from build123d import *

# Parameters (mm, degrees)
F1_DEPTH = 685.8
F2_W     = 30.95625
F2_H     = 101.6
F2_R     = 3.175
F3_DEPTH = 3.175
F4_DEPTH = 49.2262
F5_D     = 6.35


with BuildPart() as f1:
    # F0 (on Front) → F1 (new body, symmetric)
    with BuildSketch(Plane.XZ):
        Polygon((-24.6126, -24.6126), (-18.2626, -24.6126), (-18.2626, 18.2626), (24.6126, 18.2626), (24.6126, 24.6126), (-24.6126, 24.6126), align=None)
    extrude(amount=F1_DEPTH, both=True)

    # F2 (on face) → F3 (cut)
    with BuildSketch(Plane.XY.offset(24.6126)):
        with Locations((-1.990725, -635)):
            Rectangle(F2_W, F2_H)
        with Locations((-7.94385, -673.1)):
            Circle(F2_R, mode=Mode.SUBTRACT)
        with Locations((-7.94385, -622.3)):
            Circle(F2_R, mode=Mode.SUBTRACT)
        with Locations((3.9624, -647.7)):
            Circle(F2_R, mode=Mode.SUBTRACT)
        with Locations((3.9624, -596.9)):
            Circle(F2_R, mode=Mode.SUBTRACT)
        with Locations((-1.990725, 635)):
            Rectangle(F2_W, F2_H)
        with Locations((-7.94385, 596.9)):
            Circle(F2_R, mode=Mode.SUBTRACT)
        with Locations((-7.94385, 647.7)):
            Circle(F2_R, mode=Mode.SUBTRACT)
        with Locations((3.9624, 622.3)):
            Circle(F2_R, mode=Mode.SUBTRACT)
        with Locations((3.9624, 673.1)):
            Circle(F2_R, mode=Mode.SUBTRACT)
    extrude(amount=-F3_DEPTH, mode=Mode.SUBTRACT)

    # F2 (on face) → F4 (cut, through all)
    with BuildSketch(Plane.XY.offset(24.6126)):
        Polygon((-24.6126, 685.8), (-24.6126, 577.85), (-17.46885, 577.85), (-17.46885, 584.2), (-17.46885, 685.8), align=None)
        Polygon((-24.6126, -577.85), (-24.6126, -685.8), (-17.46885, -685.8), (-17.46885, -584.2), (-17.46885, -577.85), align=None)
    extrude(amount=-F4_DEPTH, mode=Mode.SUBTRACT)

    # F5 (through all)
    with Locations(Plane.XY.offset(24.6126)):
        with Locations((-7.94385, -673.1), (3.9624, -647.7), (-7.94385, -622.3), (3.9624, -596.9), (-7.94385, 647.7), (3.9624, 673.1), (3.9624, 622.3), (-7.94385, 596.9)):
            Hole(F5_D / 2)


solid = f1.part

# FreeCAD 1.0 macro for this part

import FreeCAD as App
import Part
import Sketcher

V = App.Vector
Q = App.Units.Quantity


def add_polygon(sketch, points):
    """Adds a closed chain of lines whose ends are joined by coincident constraints."""
    first, n = sketch.GeometryCount, len(points)
    for a, b in zip(points, points[1:] + points[:1]):
        sketch.addGeometry(Part.LineSegment(App.Vector(*a, 0), App.Vector(*b, 0)), False)
    for i in range(n):
        sketch.addConstraint(Sketcher.Constraint("Coincident", first + i, 2, first + (i + 1) % n, 1))

doc = App.newDocument("Part")
body = doc.addObject("PartDesign::Body", "Body")

# Sketch on XZ plane
sketch1 = body.newObject("Sketcher::SketchObject", "Sketch")
sketch1.AttachmentSupport = (doc.getObject("XZ_Plane"), [""])
sketch1.MapMode = "FlatFace"
add_polygon(sketch1, [(-25, -25), (-18, -25), (-18, 18), (25, 18), (25, 25), (-25, 25)])  # lines 0-5
sketch1.addConstraint([
    Sketcher.Constraint("Horizontal", 0),
    Sketcher.Constraint("Vertical", 1),
    Sketcher.Constraint("Horizontal", 2),
    Sketcher.Constraint("Vertical", 3),
    Sketcher.Constraint("Horizontal", 4),
    Sketcher.Constraint("Vertical", 5),
    Sketcher.Constraint("Symmetric", 3, 2, 5, 2, -1, 1),
    Sketcher.Constraint("Equal", 2, 1),
    Sketcher.Constraint("Equal", 0, 3),
    Sketcher.Constraint("DistanceX", 0, 1, 0, 2, Q("0.25 in")),
    Sketcher.Constraint("DistanceX", 2, 1, 2, 2, Q("1.688 in")),
])
pad1 = body.newObject("PartDesign::Pad", "Pad")
pad1.Profile = sketch1
pad1.Length = Q("54 in")
pad1.Midplane = True

# Sketch on XY plane
sketch2 = body.newObject("Sketcher::SketchObject", "Sketch001")
sketch2.AttachmentSupport = (doc.getObject("XY_Plane"), [""])
sketch2.MapMode = "FlatFace"
sketch2.AttachmentOffset = App.Placement(V(0, 0, 0.969 * 25.4), App.Rotation())
add_polygon(sketch2, [(-17.5, -584.2), (-17.5, -685.8), (13.5, -685.8), (13.5, -584.2)])  # lines 0-3
sketch2.addGeometry(Part.Circle(V(-7.9, -673.1, 0), V(0, 0, 1), 3.2), False)  # 4
sketch2.addGeometry(Part.Circle(V(4, -647.7, 0), V(0, 0, 1), 3.2), False)  # 5
sketch2.addGeometry(Part.Circle(V(-7.9, -622.3, 0), V(0, 0, 1), 3.2), False)  # 6
sketch2.addGeometry(Part.Circle(V(4, -596.9, 0), V(0, 0, 1), 3.2), False)  # 7
add_polygon(sketch2, [(-17.5, 685.8), (-17.5, 584.2), (13.5, 584.2), (13.5, 685.8)])  # lines 8-11
sketch2.addGeometry(Part.Circle(V(-7.9, 596.9, 0), V(0, 0, 1), 3.2), False)  # 12
sketch2.addGeometry(Part.Circle(V(4, 622.3, 0), V(0, 0, 1), 3.2), False)  # 13
sketch2.addGeometry(Part.Circle(V(-7.9, 647.7, 0), V(0, 0, 1), 3.2), False)  # 14
sketch2.addGeometry(Part.Circle(V(4, 673.1, 0), V(0, 0, 1), 3.2), False)  # 15
sketch2.addConstraint([
    Sketcher.Constraint("Vertical", 0),
    Sketcher.Constraint("Horizontal", 1),
    Sketcher.Constraint("Vertical", 2),
    Sketcher.Constraint("Horizontal", 3),
    Sketcher.Constraint("Vertical", 8),
    Sketcher.Constraint("Horizontal", 9),
    Sketcher.Constraint("Vertical", 10),
    Sketcher.Constraint("Horizontal", 11),
    Sketcher.Constraint("Equal", 4, 5),
    Sketcher.Constraint("Equal", 5, 6),
    Sketcher.Constraint("Equal", 6, 7),
    Sketcher.Constraint("Equal", 7, 12),
    Sketcher.Constraint("Equal", 12, 13),
    Sketcher.Constraint("Equal", 13, 14),
    Sketcher.Constraint("Equal", 14, 15),
    Sketcher.Constraint("Symmetric", 3, 2, 8, 2, -1),
    Sketcher.Constraint("Symmetric", 1, 2, 10, 2, -1),
    Sketcher.Constraint("Vertical", 4, 3, 6, 3),
    Sketcher.Constraint("Vertical", 5, 3, 7, 3),
    Sketcher.Constraint("Vertical", 6, 3, 12, 3),
    Sketcher.Constraint("Vertical", 7, 3, 13, 3),
    Sketcher.Constraint("Vertical", 12, 3, 14, 3),
    Sketcher.Constraint("Vertical", 13, 3, 15, 3),
    Sketcher.Constraint("Diameter", 4, Q("0.25 in")),
    Sketcher.Constraint("DistanceY", 0, 2, 0, 1, Q("4 in")),
    Sketcher.Constraint("DistanceY", 0, 2, -1, 1, Q("27 in")),
    Sketcher.Constraint("DistanceY", 4, 3, 5, 3, Q("1 in")),
    Sketcher.Constraint("DistanceY", 5, 3, 6, 3, Q("1 in")),
    Sketcher.Constraint("DistanceY", 6, 3, 7, 3, Q("1 in")),
    Sketcher.Constraint("DistanceY", 7, 3, 12, 3, Q("47 in")),
    Sketcher.Constraint("DistanceY", 12, 3, 13, 3, Q("1 in")),
    Sketcher.Constraint("DistanceY", 13, 3, 14, 3, Q("1 in")),
    Sketcher.Constraint("DistanceY", 14, 3, 15, 3, Q("1 in")),
    Sketcher.Constraint("DistanceY", 4, 3, -1, 1, Q("26.5 in")),
    Sketcher.Constraint("DistanceX", 1, 1, 1, 2, Q("1.21875 in")),
    Sketcher.Constraint("DistanceX", -1, 1, 5, 3, Q("0.156 in")),
    Sketcher.Constraint("DistanceX", -1, 1, 1, 2, Q("0.531 in")),
    Sketcher.Constraint("DistanceX", 4, 3, 5, 3, Q("0.46875 in")),
])
pocket1 = body.newObject("PartDesign::Pocket", "Pocket")
pocket1.Profile = sketch2
pocket1.Length = Q("0.125 in")

# Sketch on XY plane
sketch3 = body.newObject("Sketcher::SketchObject", "Sketch002")
sketch3.AttachmentSupport = (doc.getObject("XY_Plane"), [""])
sketch3.MapMode = "FlatFace"
sketch3.AttachmentOffset = App.Placement(V(0, 0, 0.969 * 25.4), App.Rotation())
add_polygon(sketch3, [(-25, 686), (-25, 578), (-17, 578), (-17, 686)])  # lines 0-3
add_polygon(sketch3, [(-25, -578), (-25, -686), (-17, -686), (-17, -578)])  # lines 4-7
sketch3.addConstraint([
    Sketcher.Constraint("Vertical", 0),
    Sketcher.Constraint("Horizontal", 1),
    Sketcher.Constraint("Vertical", 2),
    Sketcher.Constraint("Horizontal", 3),
    Sketcher.Constraint("Vertical", 4),
    Sketcher.Constraint("Horizontal", 5),
    Sketcher.Constraint("Vertical", 6),
    Sketcher.Constraint("Horizontal", 7),
    Sketcher.Constraint("Symmetric", 3, 2, 4, 2, -1),
    Sketcher.Constraint("Symmetric", 1, 2, 6, 2, -1),
    Sketcher.Constraint("DistanceY", -1, 1, 2, 2, Q("27 in")),
    Sketcher.Constraint("DistanceY", 0, 2, 0, 1, Q("4.25 in")),
    Sketcher.Constraint("DistanceX", 1, 1, 1, 2, Q("0.28125 in")),
    Sketcher.Constraint("DistanceX", 0, 2, -1, 1, Q("0.969 in")),
])
pocket2 = body.newObject("PartDesign::Pocket", "Pocket001")
pocket2.Profile = sketch3
pocket2.Type = "ThroughAll"

# Sketch on XY plane
sketch4 = body.newObject("Sketcher::SketchObject", "Sketch003")
sketch4.AttachmentSupport = (doc.getObject("XY_Plane"), [""])
sketch4.MapMode = "FlatFace"
sketch4.AttachmentOffset = App.Placement(V(0, 0, 0.969 * 25.4), App.Rotation())
sketch4.addGeometry([
    Part.Circle(V(-7.9, -673.1, 0), V(0, 0, 1), 3.2),  # 0
    Part.Circle(V(4, -647.7, 0), V(0, 0, 1), 3.2),  # 1
    Part.Circle(V(-7.9, -622.3, 0), V(0, 0, 1), 3.2),  # 2
    Part.Circle(V(4, -596.9, 0), V(0, 0, 1), 3.2),  # 3
    Part.Circle(V(-7.9, 647.7, 0), V(0, 0, 1), 3.2),  # 4
    Part.Circle(V(4, 673.1, 0), V(0, 0, 1), 3.2),  # 5
    Part.Circle(V(4, 622.3, 0), V(0, 0, 1), 3.2),  # 6
    Part.Circle(V(-7.9, 596.9, 0), V(0, 0, 1), 3.2),  # 7
], False)
sketch4.addConstraint([
    Sketcher.Constraint("Equal", 0, 1),
    Sketcher.Constraint("Equal", 1, 2),
    Sketcher.Constraint("Equal", 2, 3),
    Sketcher.Constraint("Equal", 3, 4),
    Sketcher.Constraint("Equal", 4, 5),
    Sketcher.Constraint("Equal", 5, 6),
    Sketcher.Constraint("Equal", 6, 7),
    Sketcher.Constraint("Vertical", 0, 3, 2, 3),
    Sketcher.Constraint("Vertical", 1, 3, 3, 3),
    Sketcher.Constraint("Vertical", 2, 3, 4, 3),
    Sketcher.Constraint("Vertical", 3, 3, 5, 3),
    Sketcher.Constraint("Vertical", 5, 3, 6, 3),
    Sketcher.Constraint("Vertical", 4, 3, 7, 3),
    Sketcher.Constraint("Diameter", 0, Q("0.25 in")),
    Sketcher.Constraint("DistanceY", 0, 3, 1, 3, Q("1 in")),
    Sketcher.Constraint("DistanceY", 1, 3, 2, 3, Q("1 in")),
    Sketcher.Constraint("DistanceY", 2, 3, 3, 3, Q("1 in")),
    Sketcher.Constraint("DistanceY", 3, 3, 4, 3, Q("49 in")),
    Sketcher.Constraint("DistanceY", 4, 3, 5, 3, Q("1 in")),
    Sketcher.Constraint("DistanceY", 6, 3, 4, 3, Q("1 in")),
    Sketcher.Constraint("DistanceY", 7, 3, 6, 3, Q("1 in")),
    Sketcher.Constraint("DistanceY", 0, 3, -1, 1, Q("26.5 in")),
    Sketcher.Constraint("DistanceX", -1, 1, 1, 3, Q("0.156 in")),
    Sketcher.Constraint("DistanceX", 0, 3, 1, 3, Q("0.46875 in")),
])
doc.recompute()
hole = body.newObject("PartDesign::Hole", "Hole")
hole.Profile = sketch4
hole.ThreadType = "None"
hole.Diameter = Q("0.25 in")
hole.DepthType = "ThroughAll"

doc.recompute()
